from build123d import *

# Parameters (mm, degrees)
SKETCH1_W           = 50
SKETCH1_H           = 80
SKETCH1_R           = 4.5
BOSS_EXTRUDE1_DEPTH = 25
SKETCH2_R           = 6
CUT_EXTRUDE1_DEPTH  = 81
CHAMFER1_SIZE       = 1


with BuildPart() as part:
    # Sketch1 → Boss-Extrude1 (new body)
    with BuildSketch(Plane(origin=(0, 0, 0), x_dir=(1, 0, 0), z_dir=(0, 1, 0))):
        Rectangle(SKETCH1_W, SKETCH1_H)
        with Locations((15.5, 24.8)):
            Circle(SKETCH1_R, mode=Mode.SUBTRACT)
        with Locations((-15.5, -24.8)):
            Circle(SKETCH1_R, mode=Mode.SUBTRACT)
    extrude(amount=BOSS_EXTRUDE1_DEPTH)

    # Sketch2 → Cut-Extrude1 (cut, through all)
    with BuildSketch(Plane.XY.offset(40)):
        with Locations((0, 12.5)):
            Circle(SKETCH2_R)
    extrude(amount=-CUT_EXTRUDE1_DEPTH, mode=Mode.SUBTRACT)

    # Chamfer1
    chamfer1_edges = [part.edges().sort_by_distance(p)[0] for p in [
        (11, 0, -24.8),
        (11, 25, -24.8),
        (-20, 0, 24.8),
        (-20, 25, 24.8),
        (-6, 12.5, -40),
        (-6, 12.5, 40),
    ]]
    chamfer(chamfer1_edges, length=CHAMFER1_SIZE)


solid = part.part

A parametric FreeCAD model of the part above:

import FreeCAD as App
import Part
import Sketcher
from FreeCAD import Vector


def edges_at(feature, points):
    """Names of the edges that pass closest to the given points."""
    edges = feature.Shape.Edges
    near = lambda p: min(range(len(edges)), key=lambda i: edges[i].distToShape(Part.Vertex(*p))[0])
    return sorted({f"Edge{near(p) + 1}" for p in points})

doc = App.newDocument("Part")
body = doc.addObject("PartDesign::Body", "Body")

# Sketch on XZ plane
sketch1 = body.newObject("Sketcher::SketchObject", "Sketch")
sketch1.AttachmentSupport = (doc.getObject("XZ_Plane"), [""])
sketch1.MapMode = "FlatFace"
sketch1.addGeometry(Part.LineSegment(Vector(-25, -40, 0), Vector(-25, 40, 0)), False)
sketch1.addGeometry(Part.LineSegment(Vector(-25, 40, 0), Vector(25, 40, 0)), False)
sketch1.addGeometry(Part.LineSegment(Vector(25, 40, 0), Vector(25, -40, 0)), False)
sketch1.addGeometry(Part.LineSegment(Vector(25, -40, 0), Vector(-25, -40, 0)), False)
sketch1.addGeometry(Part.Circle(Vector(-15.5, 24.8, 0), Vector(0, 0, 1), 4.5), False)
sketch1.addGeometry(Part.Circle(Vector(15.5, -24.8, 0), Vector(0, 0, 1), 4.5), False)
sketch1.addConstraint(Sketcher.Constraint("Coincident", 0, 2, 1, 1))
sketch1.addConstraint(Sketcher.Constraint("Coincident", 1, 2, 2, 1))
sketch1.addConstraint(Sketcher.Constraint("Coincident", 2, 2, 3, 1))
sketch1.addConstraint(Sketcher.Constraint("Coincident", 3, 2, 0, 1))
sketch1.addConstraint(Sketcher.Constraint("Vertical", 0))
sketch1.addConstraint(Sketcher.Constraint("Horizontal", 1))
sketch1.addConstraint(Sketcher.Constraint("Vertical", 2))
sketch1.addConstraint(Sketcher.Constraint("Horizontal", 3))
sketch1.addConstraint(Sketcher.Constraint("Equal", 4, 5))
sketch1.addConstraint(Sketcher.Constraint("Symmetric", 4, 3, 5, 3, -1, 1))
sketch1.addConstraint(Sketcher.Constraint("Symmetric", 0, 2, 2, 2, -1, 1))
sketch1.addConstraint(Sketcher.Constraint("Diameter", 4, 9.0))
sketch1.addConstraint(Sketcher.Constraint("DistanceX", 1, 1, 1, 2, 50.0))
sketch1.addConstraint(Sketcher.Constraint("DistanceY", 0, 1, 0, 2, 80.0))
sketch1.addConstraint(Sketcher.Constraint("DistanceX", 4, 3, 5, 3, 31.0))
sketch1.addConstraint(Sketcher.Constraint("DistanceY", -1, 1, 4, 3, 24.8))
pad1 = body.newObject("PartDesign::Pad", "Pad")
pad1.Profile = sketch1
pad1.Length = 25
pad1.Reversed = True

# Sketch on XY plane
sketch2 = body.newObject("Sketcher::SketchObject", "Sketch001")
sketch2.AttachmentSupport = (doc.getObject("XY_Plane"), [""])
sketch2.MapMode = "FlatFace"
sketch2.AttachmentOffset = App.Placement(Vector(0, 0, 40), App.Rotation())
sketch2.addGeometry(Part.Circle(Vector(0, 12, 0), Vector(0, 0, 1), 6), False)
sketch2.addConstraint(Sketcher.Constraint("PointOnObject", 0, 3, -2))
sketch2.addConstraint(Sketcher.Constraint("Diameter", 0, 12.0))
sketch2.addConstraint(Sketcher.Constraint("DistanceY", -1, 1, 0, 3, 12.5))
pocket1 = body.newObject("PartDesign::Pocket", "Pocket")
pocket1.Profile = sketch2
pocket1.Type = "ThroughAll"
doc.recompute()

chamfer = body.newObject("PartDesign::Chamfer", "Chamfer")
chamfer.Base = (pocket1, edges_at(pocket1, [
    (11, 0, -24.8),
    (11, 25, -24.8),
    (-20, 0, 24.8),
    (-20, 25, 24.8),
    (-6, 12.5, -40),
    (-6, 12.5, 40),
]))
chamfer.Size = 1

doc.recompute()
